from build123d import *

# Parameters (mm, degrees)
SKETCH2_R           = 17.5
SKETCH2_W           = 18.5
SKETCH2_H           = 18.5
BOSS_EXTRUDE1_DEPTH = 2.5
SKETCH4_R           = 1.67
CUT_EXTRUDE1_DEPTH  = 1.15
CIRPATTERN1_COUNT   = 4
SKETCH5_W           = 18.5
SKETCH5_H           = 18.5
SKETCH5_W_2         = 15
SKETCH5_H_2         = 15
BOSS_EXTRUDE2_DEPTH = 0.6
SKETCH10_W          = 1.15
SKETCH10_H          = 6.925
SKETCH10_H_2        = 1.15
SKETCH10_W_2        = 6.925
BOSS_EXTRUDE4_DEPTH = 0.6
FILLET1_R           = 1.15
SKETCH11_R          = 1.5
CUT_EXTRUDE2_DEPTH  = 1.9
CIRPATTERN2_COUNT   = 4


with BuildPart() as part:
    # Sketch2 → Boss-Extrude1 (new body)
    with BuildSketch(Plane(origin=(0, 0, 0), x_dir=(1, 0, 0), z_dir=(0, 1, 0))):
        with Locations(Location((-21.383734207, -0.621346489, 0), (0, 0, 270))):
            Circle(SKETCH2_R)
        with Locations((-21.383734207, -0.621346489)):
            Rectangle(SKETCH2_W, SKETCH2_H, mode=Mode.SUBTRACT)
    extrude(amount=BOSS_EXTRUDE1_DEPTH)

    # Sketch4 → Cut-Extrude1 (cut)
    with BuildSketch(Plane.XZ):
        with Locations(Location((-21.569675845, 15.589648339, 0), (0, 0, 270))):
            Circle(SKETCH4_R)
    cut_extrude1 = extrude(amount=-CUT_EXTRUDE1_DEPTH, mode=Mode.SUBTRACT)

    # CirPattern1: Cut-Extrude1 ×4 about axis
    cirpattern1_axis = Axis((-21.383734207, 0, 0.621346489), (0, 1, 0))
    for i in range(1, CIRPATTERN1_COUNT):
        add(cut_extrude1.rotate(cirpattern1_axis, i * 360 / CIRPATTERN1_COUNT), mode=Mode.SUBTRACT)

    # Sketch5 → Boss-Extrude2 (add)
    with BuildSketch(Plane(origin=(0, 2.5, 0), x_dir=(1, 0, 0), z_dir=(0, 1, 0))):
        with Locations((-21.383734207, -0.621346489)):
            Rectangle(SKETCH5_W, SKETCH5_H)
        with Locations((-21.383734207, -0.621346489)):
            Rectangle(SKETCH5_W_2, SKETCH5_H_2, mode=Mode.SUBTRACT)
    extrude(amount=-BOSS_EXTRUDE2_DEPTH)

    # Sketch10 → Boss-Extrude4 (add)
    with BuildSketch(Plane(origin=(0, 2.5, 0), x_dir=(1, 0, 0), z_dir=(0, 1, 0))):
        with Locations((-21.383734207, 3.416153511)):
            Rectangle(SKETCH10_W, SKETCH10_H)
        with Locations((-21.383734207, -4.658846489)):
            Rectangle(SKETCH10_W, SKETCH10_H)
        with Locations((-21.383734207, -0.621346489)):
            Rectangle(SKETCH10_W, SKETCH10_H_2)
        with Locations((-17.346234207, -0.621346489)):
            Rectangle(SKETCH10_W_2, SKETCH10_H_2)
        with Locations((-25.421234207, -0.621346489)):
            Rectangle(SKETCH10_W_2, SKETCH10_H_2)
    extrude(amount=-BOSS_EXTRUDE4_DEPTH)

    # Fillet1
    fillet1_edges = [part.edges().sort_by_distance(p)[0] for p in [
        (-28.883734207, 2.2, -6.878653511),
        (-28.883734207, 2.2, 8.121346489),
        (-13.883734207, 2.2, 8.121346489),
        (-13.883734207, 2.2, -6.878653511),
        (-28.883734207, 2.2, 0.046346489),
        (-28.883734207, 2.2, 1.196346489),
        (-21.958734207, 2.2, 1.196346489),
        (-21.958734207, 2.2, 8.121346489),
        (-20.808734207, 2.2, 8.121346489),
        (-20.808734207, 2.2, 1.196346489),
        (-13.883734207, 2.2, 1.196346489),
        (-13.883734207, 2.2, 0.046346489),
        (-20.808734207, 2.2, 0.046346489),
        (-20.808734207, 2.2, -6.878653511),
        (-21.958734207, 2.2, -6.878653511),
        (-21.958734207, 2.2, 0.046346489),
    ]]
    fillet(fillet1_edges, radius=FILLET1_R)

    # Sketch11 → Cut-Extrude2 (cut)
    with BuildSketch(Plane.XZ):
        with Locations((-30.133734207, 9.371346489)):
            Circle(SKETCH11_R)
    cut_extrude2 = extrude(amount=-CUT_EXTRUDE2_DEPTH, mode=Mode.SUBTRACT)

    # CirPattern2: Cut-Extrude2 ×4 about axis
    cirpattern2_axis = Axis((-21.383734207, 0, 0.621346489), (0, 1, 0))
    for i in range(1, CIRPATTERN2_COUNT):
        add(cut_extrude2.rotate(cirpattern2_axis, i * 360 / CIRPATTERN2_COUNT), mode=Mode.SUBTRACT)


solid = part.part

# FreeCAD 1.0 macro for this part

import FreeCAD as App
import Part
import Sketcher


def edges_at(feature, points):
    """Names of the edges that pass closest to the given points."""
    edges = feature.Shape.Edges
    near = lambda p: min(range(len(edges)), key=lambda i: edges[i].distToShape(Part.Vertex(*p))[0])
    return sorted({f"Edge{near(p) + 1}" for p in points})

doc = App.newDocument("Part")
body = doc.addObject("PartDesign::Body", "Body")

# Sketch on XZ plane
sketch1 = body.newObject("Sketcher::SketchObject", "Sketch")
sketch1.AttachmentSupport = (doc.getObject("XZ_Plane"), [""])
sketch1.MapMode = "FlatFace"
sketch1.addGeometry([
    Part.Circle(App.Vector(-21.383734, 0.621346, 0), App.Vector(0, 0, 1), 17.5),  # 0
    Part.LineSegment(App.Vector(-12.133734, 9.871346, 0), App.Vector(-30.633734, 9.871346, 0)),  # 1
    Part.LineSegment(App.Vector(-30.633734, 9.871346, 0), App.Vector(-30.633734, -8.628654, 0)),  # 2
    Part.LineSegment(App.Vector(-30.633734, -8.628654, 0), App.Vector(-12.133734, -8.628654, 0)),  # 3
    Part.LineSegment(App.Vector(-12.133734, -8.628654, 0), App.Vector(-12.133734, 9.871346, 0)),  # 4
], False)
sketch1.addConstraint([
    Sketcher.Constraint("Coincident", 1, 2, 2, 1),
    Sketcher.Constraint("Coincident", 2, 2, 3, 1),
    Sketcher.Constraint("Coincident", 3, 2, 4, 1),
    Sketcher.Constraint("Coincident", 4, 2, 1, 1),
    Sketcher.Constraint("Horizontal", 1),
    Sketcher.Constraint("Vertical", 2),
    Sketcher.Constraint("Horizontal", 3),
    Sketcher.Constraint("Vertical", 4),
    Sketcher.Constraint("Equal", 3, 2),
    Sketcher.Constraint("Diameter", 0, 35.0),
    Sketcher.Constraint("DistanceX", 1, 2, 1, 1, 18.5),
    Sketcher.Constraint("DistanceX", 1, 2, 0, 3, 9.25),
    Sketcher.Constraint("DistanceY", 0, 3, 1, 2, 9.25),
    Sketcher.Constraint("DistanceX", 0, 3, -1, 1, 21.383734),
    Sketcher.Constraint("DistanceY", -1, 1, 0, 3, 0.621346),
])
pad1 = body.newObject("PartDesign::Pad", "Pad")
pad1.Profile = sketch1
pad1.Length = 2.5
pad1.Reversed = True

# Sketch on XZ plane
sketch2 = body.newObject("Sketcher::SketchObject", "Sketch001")
sketch2.AttachmentSupport = (doc.getObject("XZ_Plane"), [""])
sketch2.MapMode = "FlatFace"
sketch2.addGeometry(Part.Circle(App.Vector(-21.569676, 15.589648, 0), App.Vector(0, 0, 1), 1.67), False)
sketch2.addConstraint([
    Sketcher.Constraint("Diameter", 0, 3.34),
    Sketcher.Constraint("DistanceY", -1, 1, 0, 3, 15.589648),
    Sketcher.Constraint("DistanceX", 0, 3, -1, 1, 21.569676),
])
pocket1 = body.newObject("PartDesign::Pocket", "Pocket")
pocket1.Profile = sketch2
pocket1.Length = 1.15
doc.recompute()

datumline = body.newObject("PartDesign::Line", "DatumLine")
datumline.Placement = App.Placement(App.Vector(-21.383734, 0, 0.621346), App.Rotation(App.Vector(0, 0, 1), App.Vector(0, 1, 0)))
polarpattern = body.newObject("PartDesign::PolarPattern", "PolarPattern")
polarpattern.Originals = [pocket1]
polarpattern.Axis = (datumline, [""])
polarpattern.Angle = 360
polarpattern.Occurrences = 4
body.Tip = polarpattern

# Sketch on XZ plane
sketch3 = body.newObject("Sketcher::SketchObject", "Sketch002")
sketch3.AttachmentSupport = (doc.getObject("XZ_Plane"), [""])
sketch3.MapMode = "FlatFace"
sketch3.AttachmentOffset = App.Placement(App.Vector(0, 0, -2.5), App.Rotation())
sketch3.addGeometry([
    Part.LineSegment(App.Vector(-30.633734, -8.628654, 0), App.Vector(-30.633734, 9.871346, 0)),  # 0
    Part.LineSegment(App.Vector(-30.633734, 9.871346, 0), App.Vector(-12.133734, 9.871346, 0)),  # 1
    Part.LineSegment(App.Vector(-12.133734, 9.871346, 0), App.Vector(-12.133734, -8.628654, 0)),  # 2
    Part.LineSegment(App.Vector(-12.133734, -8.628654, 0), App.Vector(-30.633734, -8.628654, 0)),  # 3
    Part.LineSegment(App.Vector(-13.883734, 8.121346, 0), App.Vector(-28.883734, 8.121346, 0)),  # 4
    Part.LineSegment(App.Vector(-28.883734, 8.121346, 0), App.Vector(-28.883734, -6.878654, 0)),  # 5
    Part.LineSegment(App.Vector(-28.883734, -6.878654, 0), App.Vector(-13.883734, -6.878654, 0)),  # 6
    Part.LineSegment(App.Vector(-13.883734, -6.878654, 0), App.Vector(-13.883734, 8.121346, 0)),  # 7
], False)
sketch3.addConstraint([
    Sketcher.Constraint("Coincident", 0, 2, 1, 1),
    Sketcher.Constraint("Coincident", 1, 2, 2, 1),
    Sketcher.Constraint("Coincident", 2, 2, 3, 1),
    Sketcher.Constraint("Coincident", 3, 2, 0, 1),
    Sketcher.Constraint("Coincident", 4, 2, 5, 1),
    Sketcher.Constraint("Coincident", 5, 2, 6, 1),
    Sketcher.Constraint("Coincident", 6, 2, 7, 1),
    Sketcher.Constraint("Coincident", 7, 2, 4, 1),
    Sketcher.Constraint("Vertical", 0),
    Sketcher.Constraint("Horizontal", 1),
    Sketcher.Constraint("Vertical", 2),
    Sketcher.Constraint("Horizontal", 3),
    Sketcher.Constraint("Horizontal", 4),
    Sketcher.Constraint("Vertical", 5),
    Sketcher.Constraint("Horizontal", 6),
    Sketcher.Constraint("Vertical", 7),
    Sketcher.Constraint("Equal", 3, 0),
    Sketcher.Constraint("Equal", 6, 5),
    Sketcher.Constraint("DistanceX", 4, 2, 4, 1, 15.0),
    Sketcher.Constraint("DistanceX", 1, 1, 1, 2, 18.5),
    Sketcher.Constraint("DistanceX", 0, 2, 4, 2, 1.75),
    Sketcher.Constraint("DistanceY", 4, 2, 0, 2, 1.75),
    Sketcher.Constraint("DistanceX", 0, 2, -1, 1, 30.633734),
    Sketcher.Constraint("DistanceY", -1, 1, 0, 2, 9.871346),
])
pad2 = body.newObject("PartDesign::Pad", "Pad001")
pad2.Profile = sketch3
pad2.Length = 0.6

# Sketch on XZ plane
sketch4 = body.newObject("Sketcher::SketchObject", "Sketch003")
sketch4.AttachmentSupport = (doc.getObject("XZ_Plane"), [""])
sketch4.MapMode = "FlatFace"
sketch4.AttachmentOffset = App.Placement(App.Vector(0, 0, -2.5), App.Rotation())
sketch4.addGeometry([
    Part.LineSegment(App.Vector(-21.958734, -6.878654, 0), App.Vector(-21.958734, 0.046346, 0)),  # 0
    Part.LineSegment(App.Vector(-21.958734, 0.046346, 0), App.Vector(-28.883734, 0.046346, 0)),  # 1
    Part.LineSegment(App.Vector(-28.883734, 0.046346, 0), App.Vector(-28.883734, 1.196346, 0)),  # 2
    Part.LineSegment(App.Vector(-28.883734, 1.196346, 0), App.Vector(-21.958734, 1.196346, 0)),  # 3
    Part.LineSegment(App.Vector(-21.958734, 1.196346, 0), App.Vector(-21.958734, 8.121346, 0)),  # 4
    Part.LineSegment(App.Vector(-21.958734, 8.121346, 0), App.Vector(-20.808734, 8.121346, 0)),  # 5
    Part.LineSegment(App.Vector(-20.808734, 8.121346, 0), App.Vector(-20.808734, 1.196346, 0)),  # 6
    Part.LineSegment(App.Vector(-20.808734, 1.196346, 0), App.Vector(-13.883734, 1.196346, 0)),  # 7
    Part.LineSegment(App.Vector(-13.883734, 1.196346, 0), App.Vector(-13.883734, 0.046346, 0)),  # 8
    Part.LineSegment(App.Vector(-13.883734, 0.046346, 0), App.Vector(-20.808734, 0.046346, 0)),  # 9
    Part.LineSegment(App.Vector(-20.808734, 0.046346, 0), App.Vector(-20.808734, -6.878654, 0)),  # 10
    Part.LineSegment(App.Vector(-20.808734, -6.878654, 0), App.Vector(-21.958734, -6.878654, 0)),  # 11
], False)
sketch4.addConstraint([
    Sketcher.Constraint("Coincident", 0, 2, 1, 1),
    Sketcher.Constraint("Coincident", 1, 2, 2, 1),
    Sketcher.Constraint("Coincident", 2, 2, 3, 1),
    Sketcher.Constraint("Coincident", 3, 2, 4, 1),
    Sketcher.Constraint("Coincident", 4, 2, 5, 1),
    Sketcher.Constraint("Coincident", 5, 2, 6, 1),
    Sketcher.Constraint("Coincident", 6, 2, 7, 1),
    Sketcher.Constraint("Coincident", 7, 2, 8, 1),
    Sketcher.Constraint("Coincident", 8, 2, 9, 1),
    Sketcher.Constraint("Coincident", 9, 2, 10, 1),
    Sketcher.Constraint("Coincident", 10, 2, 11, 1),
    Sketcher.Constraint("Coincident", 11, 2, 0, 1),
    Sketcher.Constraint("Vertical", 0),
    Sketcher.Constraint("Horizontal", 1),
    Sketcher.Constraint("Vertical", 2),
    Sketcher.Constraint("Horizontal", 3),
    Sketcher.Constraint("Vertical", 4),
    Sketcher.Constraint("Horizontal", 5),
    Sketcher.Constraint("Vertical", 6),
    Sketcher.Constraint("Horizontal", 7),
    Sketcher.Constraint("Vertical", 8),
    Sketcher.Constraint("Horizontal", 9),
    Sketcher.Constraint("Vertical", 10),
    Sketcher.Constraint("Horizontal", 11),
    Sketcher.Constraint("Horizontal", 3, 2, 6, 2),
    Sketcher.Constraint("Horizontal", 1, 2, 8, 2),
    Sketcher.Constraint("Vertical", 0, 2, 3, 2),
    Sketcher.Constraint("Vertical", 6, 2, 9, 2),
    Sketcher.Constraint("Equal", 3, 7),
    Sketcher.Constraint("Equal", 9, 0),
    Sketcher.Constraint("Equal", 11, 2),
    Sketcher.Constraint("Equal", 0, 4),
    Sketcher.Constraint("DistanceX", 5, 1, 5, 2, 1.15),
    Sketcher.Constraint("DistanceX", 1, 2, 1, 1, 6.925),
    Sketcher.Constraint("DistanceX", 0, 2, -1, 1, 21.958734),
    Sketcher.Constraint("DistanceY", -1, 1, 0, 2, 0.046346),
])
pad3 = body.newObject("PartDesign::Pad", "Pad002")
pad3.Profile = sketch4
pad3.Length = 0.6
doc.recompute()

fillet = body.newObject("PartDesign::Fillet", "Fillet")
fillet.Base = (pad3, edges_at(pad3, [
    (-28.884, 2.2, -6.879),
    (-28.884, 2.2, 8.121),
    (-13.884, 2.2, 8.121),
    (-13.884, 2.2, -6.879),
    (-28.884, 2.2, 0.046),
    (-28.884, 2.2, 1.196),
    (-21.959, 2.2, 1.196),
    (-21.959, 2.2, 8.121),
    (-20.809, 2.2, 8.121),
    (-20.809, 2.2, 1.196),
    (-13.884, 2.2, 1.196),
    (-13.884, 2.2, 0.046),
    (-20.809, 2.2, 0.046),
    (-20.809, 2.2, -6.879),
    (-21.959, 2.2, -6.879),
    (-21.959, 2.2, 0.046),
]))
fillet.Radius = 1.15

# Sketch on XZ plane
sketch5 = body.newObject("Sketcher::SketchObject", "Sketch004")
sketch5.AttachmentSupport = (doc.getObject("XZ_Plane"), [""])
sketch5.MapMode = "FlatFace"
sketch5.addGeometry(Part.Circle(App.Vector(-30.133734, 9.371346, 0), App.Vector(0, 0, 1), 1.5), False)
sketch5.addConstraint([
    Sketcher.Constraint("Diameter", 0, 3.0),
    Sketcher.Constraint("DistanceX", 0, 3, -1, 1, 30.133734),
    Sketcher.Constraint("DistanceY", -1, 1, 0, 3, 9.371346),
])
pocket2 = body.newObject("PartDesign::Pocket", "Pocket001")
pocket2.Profile = sketch5
pocket2.Length = 1.9
doc.recompute()

datumline2 = body.newObject("PartDesign::Line", "DatumLine001")
datumline2.Placement = App.Placement(App.Vector(-21.383734, 0, 0.621346), App.Rotation(App.Vector(0, 0, 1), App.Vector(0, 1, 0)))
polarpattern2 = body.newObject("PartDesign::PolarPattern", "PolarPattern001")
polarpattern2.Originals = [pocket2]
polarpattern2.Axis = (datumline2, [""])
polarpattern2.Angle = 360
polarpattern2.Occurrences = 4
body.Tip = polarpattern2

doc.recompute()
